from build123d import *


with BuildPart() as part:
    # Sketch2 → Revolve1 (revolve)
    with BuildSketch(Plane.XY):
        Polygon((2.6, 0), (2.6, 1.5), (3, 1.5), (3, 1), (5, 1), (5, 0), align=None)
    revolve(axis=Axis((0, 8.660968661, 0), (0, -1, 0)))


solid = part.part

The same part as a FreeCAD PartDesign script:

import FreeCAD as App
import Part
import Sketcher
Q = App.Units.Quantity


def add_polygon(sketch, points):
    """Adds a closed chain of lines whose ends are joined by coincident constraints."""
    first, n = sketch.GeometryCount, len(points)
    for a, b in zip(points, points[1:] + points[:1]):
        sketch.addGeometry(Part.LineSegment(App.Vector(*a, 0), App.Vector(*b, 0)), False)
    for i in range(n):
        sketch.addConstraint(Sketcher.Constraint("Coincident", first + i, 2, first + (i + 1) % n, 1))

doc = App.newDocument("Part")
body = doc.addObject("PartDesign::Body", "Body")

# Sketch on XY plane
sketch1 = body.newObject("Sketcher::SketchObject", "Sketch")
sketch1.AttachmentSupport = (doc.getObject("XY_Plane"), [""])
sketch1.MapMode = "FlatFace"
add_polygon(sketch1, [(2.6, 1.5), (2.6, 0), (5, 0), (5, 1), (3, 1), (3, 1.5)])  # lines 0-5
sketch1.addConstraint(Sketcher.Constraint("Vertical", 0))
sketch1.addConstraint(Sketcher.Constraint("Horizontal", 1))
sketch1.addConstraint(Sketcher.Constraint("Vertical", 2))
sketch1.addConstraint(Sketcher.Constraint("Horizontal", 3))
sketch1.addConstraint(Sketcher.Constraint("Vertical", 4))
sketch1.addConstraint(Sketcher.Constraint("Horizontal", 5))
sketch1.addConstraint(Sketcher.Constraint("PointOnObject", 0, 2, -1))
sketch1.addConstraint(Sketcher.Constraint("DistanceX", 3, 2, 3, 1, Q("2 mm")))
sketch1.addConstraint(Sketcher.Constraint("DistanceY", 2, 1, 2, 2, Q("1 mm")))
sketch1.addConstraint(Sketcher.Constraint("DistanceX", 1, 1, 1, 2, Q("2.4 mm")))
sketch1.addConstraint(Sketcher.Constraint("DistanceY", 0, 2, 0, 1, Q("1.5 mm")))
sketch1.addConstraint(Sketcher.Constraint("DistanceX", -1, 1, 1, 2, Q("5 mm")))
revolution = body.newObject("PartDesign::Revolution", "Revolution")
revolution.Profile = sketch1
revolution.ReferenceAxis = (sketch1, ["V_Axis"])
revolution.Angle = 360

doc.recompute()
